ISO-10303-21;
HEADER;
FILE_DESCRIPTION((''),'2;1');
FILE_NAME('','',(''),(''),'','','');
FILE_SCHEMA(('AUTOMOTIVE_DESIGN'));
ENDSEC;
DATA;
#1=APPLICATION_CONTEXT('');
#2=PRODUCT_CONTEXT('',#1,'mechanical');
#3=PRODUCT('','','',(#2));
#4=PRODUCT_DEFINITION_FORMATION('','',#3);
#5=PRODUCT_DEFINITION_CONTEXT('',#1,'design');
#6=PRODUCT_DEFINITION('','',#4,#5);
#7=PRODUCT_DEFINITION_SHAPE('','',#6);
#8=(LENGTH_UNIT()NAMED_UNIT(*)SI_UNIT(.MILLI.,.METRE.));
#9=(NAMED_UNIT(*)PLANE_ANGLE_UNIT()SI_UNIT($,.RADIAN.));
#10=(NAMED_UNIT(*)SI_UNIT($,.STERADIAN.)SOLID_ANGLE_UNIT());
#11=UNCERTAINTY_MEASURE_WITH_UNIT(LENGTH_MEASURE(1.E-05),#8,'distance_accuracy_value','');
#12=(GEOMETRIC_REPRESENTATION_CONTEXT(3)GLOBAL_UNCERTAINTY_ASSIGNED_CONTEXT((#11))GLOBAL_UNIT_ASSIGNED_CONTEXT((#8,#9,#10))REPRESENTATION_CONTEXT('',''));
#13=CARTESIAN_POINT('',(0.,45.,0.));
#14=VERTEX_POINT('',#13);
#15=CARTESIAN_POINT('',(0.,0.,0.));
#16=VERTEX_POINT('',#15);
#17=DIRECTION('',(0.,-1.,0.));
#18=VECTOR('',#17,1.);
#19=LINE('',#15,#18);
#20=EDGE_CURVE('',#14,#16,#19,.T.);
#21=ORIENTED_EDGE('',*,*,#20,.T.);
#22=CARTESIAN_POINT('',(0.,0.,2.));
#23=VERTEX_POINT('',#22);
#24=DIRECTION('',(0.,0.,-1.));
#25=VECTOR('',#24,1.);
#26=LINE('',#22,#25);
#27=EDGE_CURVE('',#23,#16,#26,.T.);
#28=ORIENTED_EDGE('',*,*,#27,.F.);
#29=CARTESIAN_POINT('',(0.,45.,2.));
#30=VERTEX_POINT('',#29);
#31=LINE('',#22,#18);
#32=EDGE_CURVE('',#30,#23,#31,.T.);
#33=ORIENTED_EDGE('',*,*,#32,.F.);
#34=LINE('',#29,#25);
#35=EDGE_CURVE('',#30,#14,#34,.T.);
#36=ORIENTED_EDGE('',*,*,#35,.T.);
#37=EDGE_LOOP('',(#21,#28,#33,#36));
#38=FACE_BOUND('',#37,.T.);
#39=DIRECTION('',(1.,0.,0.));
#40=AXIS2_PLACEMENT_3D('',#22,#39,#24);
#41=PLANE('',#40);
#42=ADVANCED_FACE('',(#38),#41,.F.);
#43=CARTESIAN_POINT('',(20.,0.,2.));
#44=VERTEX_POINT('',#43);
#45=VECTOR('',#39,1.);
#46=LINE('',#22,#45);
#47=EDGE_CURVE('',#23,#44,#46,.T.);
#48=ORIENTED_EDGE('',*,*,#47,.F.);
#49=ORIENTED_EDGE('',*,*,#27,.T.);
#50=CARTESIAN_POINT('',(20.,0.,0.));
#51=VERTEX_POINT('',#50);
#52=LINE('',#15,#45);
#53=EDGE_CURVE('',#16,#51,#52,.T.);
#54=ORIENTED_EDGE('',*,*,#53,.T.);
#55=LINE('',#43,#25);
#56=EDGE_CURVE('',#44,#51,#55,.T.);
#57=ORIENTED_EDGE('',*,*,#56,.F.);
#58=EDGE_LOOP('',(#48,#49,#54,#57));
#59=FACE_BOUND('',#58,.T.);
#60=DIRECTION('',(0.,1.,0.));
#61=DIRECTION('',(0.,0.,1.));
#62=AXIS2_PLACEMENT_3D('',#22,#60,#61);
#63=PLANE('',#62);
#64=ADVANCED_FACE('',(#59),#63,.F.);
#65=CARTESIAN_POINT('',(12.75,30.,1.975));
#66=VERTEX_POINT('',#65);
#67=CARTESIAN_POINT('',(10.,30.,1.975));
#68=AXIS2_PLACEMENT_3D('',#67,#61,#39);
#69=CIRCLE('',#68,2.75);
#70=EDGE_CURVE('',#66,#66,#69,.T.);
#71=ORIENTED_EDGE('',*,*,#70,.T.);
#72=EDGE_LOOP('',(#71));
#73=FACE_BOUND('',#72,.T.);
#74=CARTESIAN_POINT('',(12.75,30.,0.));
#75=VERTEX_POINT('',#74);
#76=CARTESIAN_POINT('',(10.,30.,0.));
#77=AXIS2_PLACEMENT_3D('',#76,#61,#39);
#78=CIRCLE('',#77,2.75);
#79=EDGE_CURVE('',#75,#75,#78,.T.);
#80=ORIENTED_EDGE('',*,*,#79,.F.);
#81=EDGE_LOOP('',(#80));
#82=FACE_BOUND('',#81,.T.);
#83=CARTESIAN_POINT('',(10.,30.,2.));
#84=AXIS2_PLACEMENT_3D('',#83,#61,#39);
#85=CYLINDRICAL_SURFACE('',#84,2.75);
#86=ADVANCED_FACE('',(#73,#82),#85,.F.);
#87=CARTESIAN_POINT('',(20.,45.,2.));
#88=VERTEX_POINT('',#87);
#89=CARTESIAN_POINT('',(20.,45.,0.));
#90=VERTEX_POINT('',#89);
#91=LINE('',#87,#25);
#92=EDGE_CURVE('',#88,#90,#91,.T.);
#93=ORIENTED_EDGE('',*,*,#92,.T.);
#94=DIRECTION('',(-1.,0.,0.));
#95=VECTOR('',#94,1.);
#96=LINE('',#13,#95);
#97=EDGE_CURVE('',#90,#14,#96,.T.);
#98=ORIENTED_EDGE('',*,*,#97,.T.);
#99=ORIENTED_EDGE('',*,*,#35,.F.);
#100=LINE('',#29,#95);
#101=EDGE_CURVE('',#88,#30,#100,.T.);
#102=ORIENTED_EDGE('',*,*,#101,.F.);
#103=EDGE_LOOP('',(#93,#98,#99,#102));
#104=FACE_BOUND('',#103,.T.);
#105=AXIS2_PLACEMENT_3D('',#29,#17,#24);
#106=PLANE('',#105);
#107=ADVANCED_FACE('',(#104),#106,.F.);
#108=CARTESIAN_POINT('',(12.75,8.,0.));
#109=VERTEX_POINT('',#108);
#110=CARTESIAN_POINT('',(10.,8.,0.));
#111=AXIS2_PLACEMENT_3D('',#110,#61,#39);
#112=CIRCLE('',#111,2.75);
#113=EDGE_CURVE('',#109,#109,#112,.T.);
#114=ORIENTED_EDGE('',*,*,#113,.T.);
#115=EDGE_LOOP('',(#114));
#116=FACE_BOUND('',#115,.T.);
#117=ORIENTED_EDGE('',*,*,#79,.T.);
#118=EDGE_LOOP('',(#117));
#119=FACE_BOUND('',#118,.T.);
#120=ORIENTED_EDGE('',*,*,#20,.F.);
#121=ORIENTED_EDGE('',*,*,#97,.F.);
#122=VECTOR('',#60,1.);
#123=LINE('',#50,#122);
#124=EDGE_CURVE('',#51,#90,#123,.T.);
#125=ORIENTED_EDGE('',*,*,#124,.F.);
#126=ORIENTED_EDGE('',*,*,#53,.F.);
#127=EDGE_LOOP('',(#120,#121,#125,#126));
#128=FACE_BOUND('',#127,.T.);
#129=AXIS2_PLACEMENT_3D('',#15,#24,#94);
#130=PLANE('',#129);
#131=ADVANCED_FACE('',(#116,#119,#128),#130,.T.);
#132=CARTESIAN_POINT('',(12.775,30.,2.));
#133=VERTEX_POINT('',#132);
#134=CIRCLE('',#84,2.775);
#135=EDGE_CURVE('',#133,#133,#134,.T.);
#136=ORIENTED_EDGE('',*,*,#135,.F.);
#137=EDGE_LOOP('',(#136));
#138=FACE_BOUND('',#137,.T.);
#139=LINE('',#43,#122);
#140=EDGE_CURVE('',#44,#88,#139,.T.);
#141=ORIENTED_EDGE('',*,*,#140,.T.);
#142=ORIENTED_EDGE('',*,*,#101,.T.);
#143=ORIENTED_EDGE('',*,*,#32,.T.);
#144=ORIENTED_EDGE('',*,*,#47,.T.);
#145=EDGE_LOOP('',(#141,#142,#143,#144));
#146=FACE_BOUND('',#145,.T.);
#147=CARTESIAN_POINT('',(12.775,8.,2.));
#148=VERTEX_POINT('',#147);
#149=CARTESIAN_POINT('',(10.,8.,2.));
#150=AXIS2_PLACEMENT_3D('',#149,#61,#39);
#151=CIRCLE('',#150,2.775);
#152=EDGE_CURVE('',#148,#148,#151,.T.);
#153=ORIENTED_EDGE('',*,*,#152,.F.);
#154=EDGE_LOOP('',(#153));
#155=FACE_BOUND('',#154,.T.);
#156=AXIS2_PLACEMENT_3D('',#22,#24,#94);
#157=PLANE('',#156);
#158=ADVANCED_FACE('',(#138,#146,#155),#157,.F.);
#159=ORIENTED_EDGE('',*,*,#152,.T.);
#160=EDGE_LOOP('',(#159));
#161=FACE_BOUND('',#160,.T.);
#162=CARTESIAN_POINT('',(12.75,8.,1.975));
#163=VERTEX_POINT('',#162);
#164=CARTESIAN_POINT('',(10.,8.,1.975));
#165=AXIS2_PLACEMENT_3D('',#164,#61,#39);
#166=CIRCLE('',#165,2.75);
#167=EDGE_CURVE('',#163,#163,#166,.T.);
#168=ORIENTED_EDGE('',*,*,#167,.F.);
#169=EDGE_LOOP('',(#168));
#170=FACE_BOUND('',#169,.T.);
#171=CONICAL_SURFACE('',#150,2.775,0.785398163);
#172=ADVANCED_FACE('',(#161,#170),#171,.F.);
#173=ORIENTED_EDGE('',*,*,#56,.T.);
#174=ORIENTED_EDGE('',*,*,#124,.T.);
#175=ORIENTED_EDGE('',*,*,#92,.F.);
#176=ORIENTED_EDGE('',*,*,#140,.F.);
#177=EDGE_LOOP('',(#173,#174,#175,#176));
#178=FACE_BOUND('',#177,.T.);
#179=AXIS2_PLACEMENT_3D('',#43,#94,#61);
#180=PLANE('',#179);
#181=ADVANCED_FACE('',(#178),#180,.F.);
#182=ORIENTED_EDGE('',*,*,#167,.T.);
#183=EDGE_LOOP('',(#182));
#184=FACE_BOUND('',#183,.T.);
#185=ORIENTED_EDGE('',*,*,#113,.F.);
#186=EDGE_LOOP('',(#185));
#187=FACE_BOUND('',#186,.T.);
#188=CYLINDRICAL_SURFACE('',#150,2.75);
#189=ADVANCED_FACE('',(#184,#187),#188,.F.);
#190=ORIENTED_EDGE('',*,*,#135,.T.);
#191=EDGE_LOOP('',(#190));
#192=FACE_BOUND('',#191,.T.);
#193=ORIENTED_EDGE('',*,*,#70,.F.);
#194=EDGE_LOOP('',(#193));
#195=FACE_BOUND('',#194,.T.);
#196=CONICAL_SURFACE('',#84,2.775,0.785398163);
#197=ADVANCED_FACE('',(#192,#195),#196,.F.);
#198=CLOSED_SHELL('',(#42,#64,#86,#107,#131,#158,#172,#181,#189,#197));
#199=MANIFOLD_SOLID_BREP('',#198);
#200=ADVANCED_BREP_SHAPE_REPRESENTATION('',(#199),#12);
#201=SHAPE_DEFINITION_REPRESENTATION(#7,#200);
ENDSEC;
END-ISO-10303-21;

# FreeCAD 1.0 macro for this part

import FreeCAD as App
import Part
import Sketcher

V = App.Vector
Q = App.Units.Quantity

doc = App.newDocument("Part")
body = doc.addObject("PartDesign::Body", "Body")

# Sketch on XY plane
sketch1 = body.newObject("Sketcher::SketchObject", "Sketch")
sketch1.AttachmentSupport = (doc.getObject("XY_Plane"), [""])
sketch1.MapMode = "FlatFace"
sketch1.addGeometry([
    Part.LineSegment(V(0, 45, 0), V(0, 0, 0)),
    Part.LineSegment(V(0, 0, 0), V(20, 0, 0)),
    Part.LineSegment(V(20, 0, 0), V(20, 45, 0)),
    Part.LineSegment(V(20, 45, 0), V(0, 45, 0)),
], False)
sketch1.addConstraint([
    Sketcher.Constraint("Coincident", 0, 2, 1, 1),
    Sketcher.Constraint("Coincident", 1, 2, 2, 1),
    Sketcher.Constraint("Coincident", 2, 2, 3, 1),
    Sketcher.Constraint("Coincident", 3, 2, 0, 1),
    Sketcher.Constraint("Vertical", 0),
    Sketcher.Constraint("Horizontal", 1),
    Sketcher.Constraint("Vertical", 2),
    Sketcher.Constraint("Horizontal", 3),
    Sketcher.Constraint("Coincident", 0, 2, -1, 1),
    Sketcher.Constraint("DistanceX", 1, 1, 1, 2, 20.0),
    Sketcher.Constraint("DistanceY", 0, 2, 0, 1, 45.0),
])
pad1 = body.newObject("PartDesign::Pad", "Pad")
pad1.Profile = sketch1
pad1.Length = 2

# Sketch on YZ plane
sketch2 = body.newObject("Sketcher::SketchObject", "Sketch001")
sketch2.AttachmentSupport = (doc.getObject("YZ_Plane"), [""])
sketch2.MapMode = "FlatFace"
sketch2.AttachmentOffset = App.Placement(V(0, 0, 10), App.Rotation())
sketch2.addGeometry([
    Part.LineSegment(V(30, 0, 0), V(30, 2, 0)),  # 0
    Part.LineSegment(V(30, 2, 0), V(27.225, 2, 0)),  # 1
    Part.LineSegment(V(27.225, 2, 0), V(27.25, 1.975, 0)),  # 2
    Part.LineSegment(V(27.25, 1.975, 0), V(27.25, 0, 0)),  # 3
    Part.LineSegment(V(27.25, 0, 0), V(30, 0, 0)),  # 4
], False)
sketch2.addGeometry(Part.LineSegment(V(30, 2, 0), V(30, 0, 0)), True)  # axis
sketch2.addConstraint([
    Sketcher.Constraint("Coincident", 0, 2, 1, 1),
    Sketcher.Constraint("Coincident", 1, 2, 2, 1),
    Sketcher.Constraint("Coincident", 2, 2, 3, 1),
    Sketcher.Constraint("Coincident", 3, 2, 4, 1),
    Sketcher.Constraint("Coincident", 4, 2, 0, 1),
    Sketcher.Constraint("Vertical", 0),
    Sketcher.Constraint("Horizontal", 1),
    Sketcher.Constraint("Vertical", 3),
    Sketcher.Constraint("Horizontal", 4),
    Sketcher.Constraint("Vertical", 5),
    Sketcher.Constraint("Coincident", 5, 1, 0, 2),
    Sketcher.Constraint("PointOnObject", 3, 2, -1),
    Sketcher.Constraint("PointOnObject", 5, 2, -1),
    Sketcher.Constraint("DistanceY", 0, 1, 0, 2, 2.0),
    Sketcher.Constraint("Angle", 2, Q("-45 deg")),
    Sketcher.Constraint("DistanceX", -1, 1, 0, 2, 30.0),
    Sketcher.Constraint("DistanceX", 4, 1, 4, 2, 2.75),
    Sketcher.Constraint("DistanceX", 1, 2, 1, 1, 2.775),
])
groove = body.newObject("PartDesign::Groove", "Groove")
groove.Profile = sketch2
groove.ReferenceAxis = (sketch2, ["Axis0"])
groove.Angle = 360
doc.recompute()

linearpattern = body.newObject("PartDesign::LinearPattern", "LinearPattern")
linearpattern.Originals = [groove]
linearpattern.Direction = (doc.getObject("Y_Axis"), [""])
linearpattern.Mode = "offset"
linearpattern.Offset = 22
linearpattern.Occurrences = 2
linearpattern.Reversed = True
body.Tip = linearpattern

doc.recompute()
